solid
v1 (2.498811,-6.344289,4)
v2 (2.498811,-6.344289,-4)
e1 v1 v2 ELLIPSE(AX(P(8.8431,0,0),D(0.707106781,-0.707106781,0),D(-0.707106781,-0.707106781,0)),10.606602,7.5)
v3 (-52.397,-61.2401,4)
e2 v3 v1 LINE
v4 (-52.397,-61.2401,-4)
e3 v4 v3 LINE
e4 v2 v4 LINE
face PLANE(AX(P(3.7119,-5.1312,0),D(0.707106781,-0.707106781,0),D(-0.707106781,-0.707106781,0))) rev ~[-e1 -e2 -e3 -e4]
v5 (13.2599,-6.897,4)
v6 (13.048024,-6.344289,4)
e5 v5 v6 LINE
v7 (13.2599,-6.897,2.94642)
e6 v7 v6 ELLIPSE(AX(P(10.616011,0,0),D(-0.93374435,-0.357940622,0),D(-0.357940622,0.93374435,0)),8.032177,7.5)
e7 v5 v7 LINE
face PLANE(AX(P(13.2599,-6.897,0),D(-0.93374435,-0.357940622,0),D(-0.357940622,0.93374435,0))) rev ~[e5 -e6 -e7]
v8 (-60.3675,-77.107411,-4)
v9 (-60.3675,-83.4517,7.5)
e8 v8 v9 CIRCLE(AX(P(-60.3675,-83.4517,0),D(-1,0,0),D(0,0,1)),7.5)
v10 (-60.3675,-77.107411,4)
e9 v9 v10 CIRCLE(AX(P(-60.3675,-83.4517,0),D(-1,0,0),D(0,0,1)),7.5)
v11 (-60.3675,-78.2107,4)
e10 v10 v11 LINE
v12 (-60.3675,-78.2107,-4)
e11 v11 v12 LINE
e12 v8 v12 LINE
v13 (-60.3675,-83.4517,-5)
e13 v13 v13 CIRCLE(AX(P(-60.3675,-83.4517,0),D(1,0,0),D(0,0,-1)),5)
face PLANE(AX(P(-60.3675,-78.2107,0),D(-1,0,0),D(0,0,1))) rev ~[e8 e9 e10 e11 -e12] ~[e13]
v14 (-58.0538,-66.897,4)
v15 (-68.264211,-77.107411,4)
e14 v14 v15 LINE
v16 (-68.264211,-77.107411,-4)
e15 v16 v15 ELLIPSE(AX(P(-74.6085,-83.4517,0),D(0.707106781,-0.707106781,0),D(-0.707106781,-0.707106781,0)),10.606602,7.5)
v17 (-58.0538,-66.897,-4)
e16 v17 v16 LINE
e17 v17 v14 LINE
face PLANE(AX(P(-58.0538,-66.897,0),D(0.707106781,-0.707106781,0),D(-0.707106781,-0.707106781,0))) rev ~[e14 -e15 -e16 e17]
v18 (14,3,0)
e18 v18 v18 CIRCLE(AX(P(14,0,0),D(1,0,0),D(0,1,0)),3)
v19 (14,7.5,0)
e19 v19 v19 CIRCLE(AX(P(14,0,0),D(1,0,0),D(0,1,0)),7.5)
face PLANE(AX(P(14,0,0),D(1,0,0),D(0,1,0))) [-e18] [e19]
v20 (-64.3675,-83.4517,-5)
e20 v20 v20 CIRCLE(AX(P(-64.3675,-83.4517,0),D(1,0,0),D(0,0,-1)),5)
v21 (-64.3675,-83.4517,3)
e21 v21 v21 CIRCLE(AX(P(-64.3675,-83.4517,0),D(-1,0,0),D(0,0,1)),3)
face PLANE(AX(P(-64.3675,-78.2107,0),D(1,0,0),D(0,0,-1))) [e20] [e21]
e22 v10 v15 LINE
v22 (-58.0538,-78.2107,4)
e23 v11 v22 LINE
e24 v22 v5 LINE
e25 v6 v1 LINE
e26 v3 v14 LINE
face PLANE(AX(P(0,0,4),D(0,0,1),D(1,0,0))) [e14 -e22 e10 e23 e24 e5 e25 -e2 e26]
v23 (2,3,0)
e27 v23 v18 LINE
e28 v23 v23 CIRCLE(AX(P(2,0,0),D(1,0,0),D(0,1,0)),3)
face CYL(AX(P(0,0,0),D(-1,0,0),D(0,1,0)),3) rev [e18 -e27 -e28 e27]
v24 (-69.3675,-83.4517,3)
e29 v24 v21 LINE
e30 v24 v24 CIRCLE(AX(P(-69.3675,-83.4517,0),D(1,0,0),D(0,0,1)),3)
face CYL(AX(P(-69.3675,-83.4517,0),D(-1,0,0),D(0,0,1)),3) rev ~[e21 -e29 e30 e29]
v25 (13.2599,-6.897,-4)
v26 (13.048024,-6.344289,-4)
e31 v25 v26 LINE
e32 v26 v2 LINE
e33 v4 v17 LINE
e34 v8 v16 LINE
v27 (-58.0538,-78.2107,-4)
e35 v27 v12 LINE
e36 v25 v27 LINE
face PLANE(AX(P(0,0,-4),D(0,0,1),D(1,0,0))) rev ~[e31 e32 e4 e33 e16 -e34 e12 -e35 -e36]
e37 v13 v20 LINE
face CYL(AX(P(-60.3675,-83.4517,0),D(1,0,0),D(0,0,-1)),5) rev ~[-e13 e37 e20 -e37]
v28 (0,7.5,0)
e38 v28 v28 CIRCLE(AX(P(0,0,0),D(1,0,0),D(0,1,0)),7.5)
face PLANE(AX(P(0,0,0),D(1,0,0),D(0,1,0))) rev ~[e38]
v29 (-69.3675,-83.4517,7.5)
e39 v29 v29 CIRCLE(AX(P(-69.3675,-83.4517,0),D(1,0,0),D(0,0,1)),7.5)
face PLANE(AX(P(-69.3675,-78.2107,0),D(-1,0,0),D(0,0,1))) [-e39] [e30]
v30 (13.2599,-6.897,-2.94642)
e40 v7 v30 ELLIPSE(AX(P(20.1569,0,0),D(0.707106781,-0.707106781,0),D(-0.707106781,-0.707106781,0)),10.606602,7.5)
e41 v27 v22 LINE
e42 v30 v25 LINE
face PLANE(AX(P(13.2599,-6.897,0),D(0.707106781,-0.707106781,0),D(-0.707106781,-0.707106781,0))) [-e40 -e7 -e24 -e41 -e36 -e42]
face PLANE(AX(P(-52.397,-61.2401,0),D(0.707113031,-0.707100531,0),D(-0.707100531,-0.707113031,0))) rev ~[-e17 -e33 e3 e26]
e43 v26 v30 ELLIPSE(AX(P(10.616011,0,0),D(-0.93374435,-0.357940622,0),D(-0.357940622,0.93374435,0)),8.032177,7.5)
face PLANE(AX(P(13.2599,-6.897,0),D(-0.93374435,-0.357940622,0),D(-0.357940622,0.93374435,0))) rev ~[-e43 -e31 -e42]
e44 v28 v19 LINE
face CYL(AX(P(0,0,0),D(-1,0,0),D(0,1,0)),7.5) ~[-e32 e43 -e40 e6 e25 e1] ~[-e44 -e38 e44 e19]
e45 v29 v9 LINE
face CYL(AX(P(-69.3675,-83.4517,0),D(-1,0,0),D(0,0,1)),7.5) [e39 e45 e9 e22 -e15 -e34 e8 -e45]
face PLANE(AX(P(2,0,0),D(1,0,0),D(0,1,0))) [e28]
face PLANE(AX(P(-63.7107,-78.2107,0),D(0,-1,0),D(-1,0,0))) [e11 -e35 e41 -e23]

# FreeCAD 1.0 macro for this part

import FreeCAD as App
import Part
import Sketcher
Q = App.Units.Quantity

doc = App.newDocument("Part")
body = doc.addObject("PartDesign::Body", "Body")

# Sketch on YZ plane
sketch1 = body.newObject("Sketcher::SketchObject", "Sketch")
sketch1.AttachmentSupport = (doc.getObject("YZ_Plane"), [""])
sketch1.MapMode = "FlatFace"
sketch1.addGeometry([
    Part.Circle(App.Vector(0, 0, 0), App.Vector(0, 0, 1), 7.5),
    Part.Circle(App.Vector(0, 0, 0), App.Vector(0, 0, 1), 3),
], False)
sketch1.addConstraint([
    Sketcher.Constraint("Coincident", 0, 3, -1, 1),
    Sketcher.Constraint("Coincident", 1, 3, -1, 1),
    Sketcher.Constraint("Diameter", 0, Q("15 mm")),
    Sketcher.Constraint("Diameter", 1, Q("6 mm")),
])
pad1 = body.newObject("PartDesign::Pad", "Pad")
pad1.Profile = sketch1
pad1.Length = 14

# Sketch on XY plane
sketch2 = body.newObject("Sketcher::SketchObject", "Sketch001")
sketch2.AttachmentSupport = (doc.getObject("XY_Plane"), [""])
sketch2.MapMode = "FlatFace"
sketch2.addGeometry([
    Part.LineSegment(App.Vector(3.7, -5.1, 0), App.Vector(-52.4, -61.2, 0)),  # 0
    Part.LineSegment(App.Vector(-52.4, -61.2, 0), App.Vector(-58.1, -66.9, 0)),  # 1
    Part.LineSegment(App.Vector(-58.1, -66.9, 0), App.Vector(-69.4, -78.2, 0)),  # 2
    Part.LineSegment(App.Vector(-69.4, -78.2, 0), App.Vector(-58.1, -78.2, 0)),  # 3
    Part.LineSegment(App.Vector(-58.1, -78.2, 0), App.Vector(13.3, -6.9, 0)),  # 4
    Part.LineSegment(App.Vector(13.3, -6.9, 0), App.Vector(12.6, -5.1, 0)),  # 5
    Part.LineSegment(App.Vector(12.6, -5.1, 0), App.Vector(3.7, -5.1, 0)),  # 6
], False)
sketch2.addConstraint([
    Sketcher.Constraint("Coincident", 0, 2, 1, 1),
    Sketcher.Constraint("Coincident", 1, 2, 2, 1),
    Sketcher.Constraint("Coincident", 2, 2, 3, 1),
    Sketcher.Constraint("Coincident", 3, 2, 4, 1),
    Sketcher.Constraint("Coincident", 4, 2, 5, 1),
    Sketcher.Constraint("Coincident", 5, 2, 6, 1),
    Sketcher.Constraint("Coincident", 6, 2, 0, 1),
    Sketcher.Constraint("Horizontal", 3),
    Sketcher.Constraint("Horizontal", 6),
    Sketcher.Constraint("Parallel", 0, 1),
    Sketcher.Constraint("Parallel", 1, 2),
    Sketcher.Constraint("Parallel", 2, 4),
    Sketcher.Constraint("Vertical", 1, 2, 3, 2),
    Sketcher.Constraint("Angle", 4, Q("45 deg")),
    Sketcher.Constraint("DistanceY", 1, 2, 4, 2, Q("60 mm")),
    Sketcher.Constraint("DistanceX", 6, 2, 6, 1, Q("8.871 mm")),
    Sketcher.Constraint("Distance", 1, Q("8 mm")),
    Sketcher.Constraint("Distance", 2, Q("16 mm")),
    Sketcher.Constraint("Distance", 0, Q("79.35 mm")),
    Sketcher.Constraint("DistanceY", 0, 2, -1, 1, Q("61.24 mm")),
    Sketcher.Constraint("DistanceX", -1, 1, 4, 2, Q("13.26 mm")),
])
pad2 = body.newObject("PartDesign::Pad", "Pad001")
pad2.Profile = sketch2
pad2.Length = 8
pad2.Midplane = True

# Sketch on YZ plane
sketch3 = body.newObject("Sketcher::SketchObject", "Sketch002")
sketch3.AttachmentSupport = (doc.getObject("YZ_Plane"), [""])
sketch3.MapMode = "FlatFace"
sketch3.addGeometry(Part.Circle(App.Vector(0, 0, 0), App.Vector(0, 0, 1), 3), False)
sketch3.addConstraint([
    Sketcher.Constraint("Coincident", 0, 3, -1, 1),
    Sketcher.Constraint("Diameter", 0, Q("6 mm")),
])
pad3 = body.newObject("PartDesign::Pad", "Pad002")
pad3.Profile = sketch3
pad3.Length = 2

# Sketch on YZ plane
sketch4 = body.newObject("Sketcher::SketchObject", "Sketch003")
sketch4.AttachmentSupport = (doc.getObject("YZ_Plane"), [""])
sketch4.MapMode = "FlatFace"
sketch4.AttachmentOffset = App.Placement(App.Vector(0, 0, -69.3675), App.Rotation())
sketch4.addGeometry([
    Part.Circle(App.Vector(-83.5, 0, 0), App.Vector(0, 0, 1), 7.5),
    Part.Circle(App.Vector(-83.5, 0, 0), App.Vector(0, 0, 1), 3),
], False)
sketch4.addConstraint([
    Sketcher.Constraint("Coincident", 1, 3, 0, 3),
    Sketcher.Constraint("PointOnObject", 0, 3, -1),
    Sketcher.Constraint("Diameter", 0, Q("15 mm")),
    Sketcher.Constraint("Diameter", 1, Q("6 mm")),
    Sketcher.Constraint("DistanceX", 0, 3, -1, 1, Q("83.4517 mm")),
])
pad4 = body.newObject("PartDesign::Pad", "Pad003")
pad4.Profile = sketch4
pad4.Length = 9

# Sketch on YZ plane
sketch5 = body.newObject("Sketcher::SketchObject", "Sketch004")
sketch5.AttachmentSupport = (doc.getObject("YZ_Plane"), [""])
sketch5.MapMode = "FlatFace"
sketch5.AttachmentOffset = App.Placement(App.Vector(0, 0, -60.3675), App.Rotation())
sketch5.addGeometry([
    Part.Circle(App.Vector(-83.5, 0, 0), App.Vector(0, 0, 1), 5),
    Part.Circle(App.Vector(-83.5, 0, 0), App.Vector(0, 0, 1), 3),
], False)
sketch5.addConstraint([
    Sketcher.Constraint("Coincident", 1, 3, 0, 3),
    Sketcher.Constraint("PointOnObject", 0, 3, -1),
    Sketcher.Constraint("Diameter", 0, Q("10 mm")),
    Sketcher.Constraint("Diameter", 1, Q("6 mm")),
    Sketcher.Constraint("DistanceX", 0, 3, -1, 1, Q("83.4517 mm")),
])
pocket1 = body.newObject("PartDesign::Pocket", "Pocket")
pocket1.Profile = sketch5
pocket1.Type = "TwoLengths"
pocket1.Length = 9
pocket1.Length2 = 4
pocket1.Reversed = True

doc.recompute()
